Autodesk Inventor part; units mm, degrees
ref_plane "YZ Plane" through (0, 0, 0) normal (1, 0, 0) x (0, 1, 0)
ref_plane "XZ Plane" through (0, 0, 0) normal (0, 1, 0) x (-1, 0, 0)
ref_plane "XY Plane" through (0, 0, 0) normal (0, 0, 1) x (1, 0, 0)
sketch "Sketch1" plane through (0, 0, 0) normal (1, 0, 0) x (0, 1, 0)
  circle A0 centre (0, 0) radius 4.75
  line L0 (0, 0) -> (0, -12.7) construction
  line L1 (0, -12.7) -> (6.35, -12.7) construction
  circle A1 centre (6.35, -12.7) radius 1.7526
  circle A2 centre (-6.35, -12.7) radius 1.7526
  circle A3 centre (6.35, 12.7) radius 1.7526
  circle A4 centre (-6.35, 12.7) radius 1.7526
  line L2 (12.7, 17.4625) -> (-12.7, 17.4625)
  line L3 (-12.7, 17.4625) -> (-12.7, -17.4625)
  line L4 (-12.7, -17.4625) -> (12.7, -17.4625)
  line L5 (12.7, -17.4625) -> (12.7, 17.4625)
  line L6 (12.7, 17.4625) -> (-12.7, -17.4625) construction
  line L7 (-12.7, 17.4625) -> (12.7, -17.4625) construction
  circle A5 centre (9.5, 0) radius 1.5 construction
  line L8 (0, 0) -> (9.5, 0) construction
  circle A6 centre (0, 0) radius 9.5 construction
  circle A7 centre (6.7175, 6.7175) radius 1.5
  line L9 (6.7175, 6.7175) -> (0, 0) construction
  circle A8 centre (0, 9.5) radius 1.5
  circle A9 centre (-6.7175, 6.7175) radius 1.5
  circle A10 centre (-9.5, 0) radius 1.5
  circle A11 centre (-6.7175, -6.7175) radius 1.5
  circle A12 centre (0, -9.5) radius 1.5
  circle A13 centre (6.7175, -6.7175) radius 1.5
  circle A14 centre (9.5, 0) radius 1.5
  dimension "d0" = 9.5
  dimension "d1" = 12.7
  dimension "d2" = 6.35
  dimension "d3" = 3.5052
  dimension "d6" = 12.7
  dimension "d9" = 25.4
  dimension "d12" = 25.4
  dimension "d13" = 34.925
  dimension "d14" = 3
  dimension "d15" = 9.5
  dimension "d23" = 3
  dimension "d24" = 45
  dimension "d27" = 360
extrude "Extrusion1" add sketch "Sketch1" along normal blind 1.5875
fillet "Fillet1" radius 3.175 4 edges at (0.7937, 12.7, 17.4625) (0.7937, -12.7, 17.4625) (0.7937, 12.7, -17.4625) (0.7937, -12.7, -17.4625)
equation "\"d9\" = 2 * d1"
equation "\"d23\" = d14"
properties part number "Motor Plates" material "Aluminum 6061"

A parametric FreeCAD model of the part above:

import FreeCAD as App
import Part
import Sketcher

V = App.Vector
Q = App.Units.Quantity


def edges_at(feature, points):
    """Names of the edges that pass closest to the given points."""
    edges = feature.Shape.Edges
    near = lambda p: min(range(len(edges)), key=lambda i: edges[i].distToShape(Part.Vertex(*p))[0])
    return sorted({f"Edge{near(p) + 1}" for p in points})


def add_polygon(sketch, points):
    """Adds a closed chain of lines whose ends are joined by coincident constraints."""
    first, n = sketch.GeometryCount, len(points)
    for a, b in zip(points, points[1:] + points[:1]):
        sketch.addGeometry(Part.LineSegment(App.Vector(*a, 0), App.Vector(*b, 0)), False)
    for i in range(n):
        sketch.addConstraint(Sketcher.Constraint("Coincident", first + i, 2, first + (i + 1) % n, 1))

doc = App.newDocument("Part")
body = doc.addObject("PartDesign::Body", "Body")

sketch1 = body.newObject("Sketcher::SketchObject", "Sketch")
sketch1.AttachmentSupport = (doc.getObject("YZ_Plane"), [""])
sketch1.MapMode = "FlatFace"
add_polygon(sketch1, [(12.7, -17.5), (12.7, 17.5), (-12.7, 17.5), (-12.7, -17.5)])
sketch1.addGeometry(Part.Circle(V(-6.3, -12.7, 0), V(0, 0, 1), 1.8), False)
sketch1.addGeometry(Part.Circle(V(0, -9.5, 0), V(0, 0, 1), 1.5), False)
sketch1.addGeometry(Part.Circle(V(-6.7, -6.7, 0), V(0, 0, 1), 1.5), False)
sketch1.addGeometry(Part.Circle(V(6.3, -12.7, 0), V(0, 0, 1), 1.8), False)
sketch1.addGeometry(Part.Circle(V(6.7, -6.7, 0), V(0, 0, 1), 1.5), False)
sketch1.addGeometry(Part.Circle(V(-9.5, 0, 0), V(0, 0, 1), 1.5), False)
sketch1.addGeometry(Part.Circle(V(-6.7, 6.7, 0), V(0, 0, 1), 1.5), False)
sketch1.addGeometry(Part.Circle(V(0, 0, 0), V(0, 0, 1), 4.8), False)
sketch1.addGeometry(Part.Circle(V(-6.3, 12.7, 0), V(0, 0, 1), 1.8), False)
sketch1.addGeometry(Part.Circle(V(0, 9.5, 0), V(0, 0, 1), 1.5), False)
sketch1.addGeometry(Part.Circle(V(9.5, 0, 0), V(0, 0, 1), 1.5), False)
sketch1.addGeometry(Part.Circle(V(6.7, 6.7, 0), V(0, 0, 1), 1.5), False)
sketch1.addGeometry(Part.Circle(V(6.3, 12.7, 0), V(0, 0, 1), 1.8), False)
sketch1.addConstraint([
    Sketcher.Constraint("Vertical", 0),
    Sketcher.Constraint("Horizontal", 1),
    Sketcher.Constraint("Vertical", 2),
    Sketcher.Constraint("Horizontal", 3),
    Sketcher.Constraint("Coincident", 11, 3, -1, 1),
    Sketcher.Constraint("Equal", 5, 6),
    Sketcher.Constraint("Equal", 4, 7),
    Sketcher.Constraint("Equal", 6, 8),
    Sketcher.Constraint("Equal", 8, 9),
    Sketcher.Constraint("Equal", 9, 10),
    Sketcher.Constraint("Equal", 7, 12),
    Sketcher.Constraint("Equal", 10, 13),
    Sketcher.Constraint("Equal", 13, 14),
    Sketcher.Constraint("Equal", 14, 15),
    Sketcher.Constraint("Equal", 12, 16),
    Sketcher.Constraint("Symmetric", 8, 3, 10, 3, -1, 1),
    Sketcher.Constraint("Symmetric", 7, 3, 12, 3, -1, 1),
    Sketcher.Constraint("Symmetric", 5, 3, 13, 3, -1, 1),
    Sketcher.Constraint("Symmetric", 9, 3, 14, 3, -1, 1),
    Sketcher.Constraint("Symmetric", 6, 3, 15, 3, -1, 1),
    Sketcher.Constraint("Symmetric", 4, 3, 16, 3, -1, 1),
    Sketcher.Constraint("Symmetric", 0, 2, 2, 2, -1, 1),
    Sketcher.Constraint("Symmetric", 4, 3, 7, 3, -2),
    Sketcher.Constraint("Symmetric", 6, 3, 8, 3, -2),
    Sketcher.Constraint("PointOnObject", 5, 3, -2),
    Sketcher.Constraint("PointOnObject", 9, 3, -1),
    Sketcher.Constraint("DistanceX", 1, 2, 1, 1, Q("1 in")),
    Sketcher.Constraint("Diameter", 4, Q("0.138 in")),
    Sketcher.Constraint("Diameter", 5, Q("0.1181 in")),
    Sketcher.Constraint("DistanceY", 4, 3, -1, 1, Q("0.5 in")),
    Sketcher.Constraint("DistanceX", 4, 3, 7, 3, Q("0.5 in")),
    Sketcher.Constraint("Diameter", 11, 9.5),
    Sketcher.Constraint("DistanceY", 0, 1, 0, 2, Q("1.375 in")),
    Sketcher.Constraint("DistanceY", 5, 3, -1, 1, 9.5),
    Sketcher.Constraint("DistanceX", 9, 3, -1, 1, 9.5),
    Sketcher.Constraint("DistanceX", 6, 3, -1, 1, 6.7175),
    Sketcher.Constraint("DistanceY", 6, 3, -1, 1, 6.7175),
])
pad1 = body.newObject("PartDesign::Pad", "Pad")
pad1.Profile = sketch1
pad1.Length = Q("0.0625 in")
doc.recompute()

fillet = body.newObject("PartDesign::Fillet", "Fillet")
fillet.Base = (pad1, edges_at(pad1, [
    (0.794, 12.7, 17.462),
    (0.794, -12.7, 17.462),
    (0.794, 12.7, -17.462),
    (0.794, -12.7, -17.462),
]))
fillet.Radius = Q("0.125 in")

doc.recompute()
